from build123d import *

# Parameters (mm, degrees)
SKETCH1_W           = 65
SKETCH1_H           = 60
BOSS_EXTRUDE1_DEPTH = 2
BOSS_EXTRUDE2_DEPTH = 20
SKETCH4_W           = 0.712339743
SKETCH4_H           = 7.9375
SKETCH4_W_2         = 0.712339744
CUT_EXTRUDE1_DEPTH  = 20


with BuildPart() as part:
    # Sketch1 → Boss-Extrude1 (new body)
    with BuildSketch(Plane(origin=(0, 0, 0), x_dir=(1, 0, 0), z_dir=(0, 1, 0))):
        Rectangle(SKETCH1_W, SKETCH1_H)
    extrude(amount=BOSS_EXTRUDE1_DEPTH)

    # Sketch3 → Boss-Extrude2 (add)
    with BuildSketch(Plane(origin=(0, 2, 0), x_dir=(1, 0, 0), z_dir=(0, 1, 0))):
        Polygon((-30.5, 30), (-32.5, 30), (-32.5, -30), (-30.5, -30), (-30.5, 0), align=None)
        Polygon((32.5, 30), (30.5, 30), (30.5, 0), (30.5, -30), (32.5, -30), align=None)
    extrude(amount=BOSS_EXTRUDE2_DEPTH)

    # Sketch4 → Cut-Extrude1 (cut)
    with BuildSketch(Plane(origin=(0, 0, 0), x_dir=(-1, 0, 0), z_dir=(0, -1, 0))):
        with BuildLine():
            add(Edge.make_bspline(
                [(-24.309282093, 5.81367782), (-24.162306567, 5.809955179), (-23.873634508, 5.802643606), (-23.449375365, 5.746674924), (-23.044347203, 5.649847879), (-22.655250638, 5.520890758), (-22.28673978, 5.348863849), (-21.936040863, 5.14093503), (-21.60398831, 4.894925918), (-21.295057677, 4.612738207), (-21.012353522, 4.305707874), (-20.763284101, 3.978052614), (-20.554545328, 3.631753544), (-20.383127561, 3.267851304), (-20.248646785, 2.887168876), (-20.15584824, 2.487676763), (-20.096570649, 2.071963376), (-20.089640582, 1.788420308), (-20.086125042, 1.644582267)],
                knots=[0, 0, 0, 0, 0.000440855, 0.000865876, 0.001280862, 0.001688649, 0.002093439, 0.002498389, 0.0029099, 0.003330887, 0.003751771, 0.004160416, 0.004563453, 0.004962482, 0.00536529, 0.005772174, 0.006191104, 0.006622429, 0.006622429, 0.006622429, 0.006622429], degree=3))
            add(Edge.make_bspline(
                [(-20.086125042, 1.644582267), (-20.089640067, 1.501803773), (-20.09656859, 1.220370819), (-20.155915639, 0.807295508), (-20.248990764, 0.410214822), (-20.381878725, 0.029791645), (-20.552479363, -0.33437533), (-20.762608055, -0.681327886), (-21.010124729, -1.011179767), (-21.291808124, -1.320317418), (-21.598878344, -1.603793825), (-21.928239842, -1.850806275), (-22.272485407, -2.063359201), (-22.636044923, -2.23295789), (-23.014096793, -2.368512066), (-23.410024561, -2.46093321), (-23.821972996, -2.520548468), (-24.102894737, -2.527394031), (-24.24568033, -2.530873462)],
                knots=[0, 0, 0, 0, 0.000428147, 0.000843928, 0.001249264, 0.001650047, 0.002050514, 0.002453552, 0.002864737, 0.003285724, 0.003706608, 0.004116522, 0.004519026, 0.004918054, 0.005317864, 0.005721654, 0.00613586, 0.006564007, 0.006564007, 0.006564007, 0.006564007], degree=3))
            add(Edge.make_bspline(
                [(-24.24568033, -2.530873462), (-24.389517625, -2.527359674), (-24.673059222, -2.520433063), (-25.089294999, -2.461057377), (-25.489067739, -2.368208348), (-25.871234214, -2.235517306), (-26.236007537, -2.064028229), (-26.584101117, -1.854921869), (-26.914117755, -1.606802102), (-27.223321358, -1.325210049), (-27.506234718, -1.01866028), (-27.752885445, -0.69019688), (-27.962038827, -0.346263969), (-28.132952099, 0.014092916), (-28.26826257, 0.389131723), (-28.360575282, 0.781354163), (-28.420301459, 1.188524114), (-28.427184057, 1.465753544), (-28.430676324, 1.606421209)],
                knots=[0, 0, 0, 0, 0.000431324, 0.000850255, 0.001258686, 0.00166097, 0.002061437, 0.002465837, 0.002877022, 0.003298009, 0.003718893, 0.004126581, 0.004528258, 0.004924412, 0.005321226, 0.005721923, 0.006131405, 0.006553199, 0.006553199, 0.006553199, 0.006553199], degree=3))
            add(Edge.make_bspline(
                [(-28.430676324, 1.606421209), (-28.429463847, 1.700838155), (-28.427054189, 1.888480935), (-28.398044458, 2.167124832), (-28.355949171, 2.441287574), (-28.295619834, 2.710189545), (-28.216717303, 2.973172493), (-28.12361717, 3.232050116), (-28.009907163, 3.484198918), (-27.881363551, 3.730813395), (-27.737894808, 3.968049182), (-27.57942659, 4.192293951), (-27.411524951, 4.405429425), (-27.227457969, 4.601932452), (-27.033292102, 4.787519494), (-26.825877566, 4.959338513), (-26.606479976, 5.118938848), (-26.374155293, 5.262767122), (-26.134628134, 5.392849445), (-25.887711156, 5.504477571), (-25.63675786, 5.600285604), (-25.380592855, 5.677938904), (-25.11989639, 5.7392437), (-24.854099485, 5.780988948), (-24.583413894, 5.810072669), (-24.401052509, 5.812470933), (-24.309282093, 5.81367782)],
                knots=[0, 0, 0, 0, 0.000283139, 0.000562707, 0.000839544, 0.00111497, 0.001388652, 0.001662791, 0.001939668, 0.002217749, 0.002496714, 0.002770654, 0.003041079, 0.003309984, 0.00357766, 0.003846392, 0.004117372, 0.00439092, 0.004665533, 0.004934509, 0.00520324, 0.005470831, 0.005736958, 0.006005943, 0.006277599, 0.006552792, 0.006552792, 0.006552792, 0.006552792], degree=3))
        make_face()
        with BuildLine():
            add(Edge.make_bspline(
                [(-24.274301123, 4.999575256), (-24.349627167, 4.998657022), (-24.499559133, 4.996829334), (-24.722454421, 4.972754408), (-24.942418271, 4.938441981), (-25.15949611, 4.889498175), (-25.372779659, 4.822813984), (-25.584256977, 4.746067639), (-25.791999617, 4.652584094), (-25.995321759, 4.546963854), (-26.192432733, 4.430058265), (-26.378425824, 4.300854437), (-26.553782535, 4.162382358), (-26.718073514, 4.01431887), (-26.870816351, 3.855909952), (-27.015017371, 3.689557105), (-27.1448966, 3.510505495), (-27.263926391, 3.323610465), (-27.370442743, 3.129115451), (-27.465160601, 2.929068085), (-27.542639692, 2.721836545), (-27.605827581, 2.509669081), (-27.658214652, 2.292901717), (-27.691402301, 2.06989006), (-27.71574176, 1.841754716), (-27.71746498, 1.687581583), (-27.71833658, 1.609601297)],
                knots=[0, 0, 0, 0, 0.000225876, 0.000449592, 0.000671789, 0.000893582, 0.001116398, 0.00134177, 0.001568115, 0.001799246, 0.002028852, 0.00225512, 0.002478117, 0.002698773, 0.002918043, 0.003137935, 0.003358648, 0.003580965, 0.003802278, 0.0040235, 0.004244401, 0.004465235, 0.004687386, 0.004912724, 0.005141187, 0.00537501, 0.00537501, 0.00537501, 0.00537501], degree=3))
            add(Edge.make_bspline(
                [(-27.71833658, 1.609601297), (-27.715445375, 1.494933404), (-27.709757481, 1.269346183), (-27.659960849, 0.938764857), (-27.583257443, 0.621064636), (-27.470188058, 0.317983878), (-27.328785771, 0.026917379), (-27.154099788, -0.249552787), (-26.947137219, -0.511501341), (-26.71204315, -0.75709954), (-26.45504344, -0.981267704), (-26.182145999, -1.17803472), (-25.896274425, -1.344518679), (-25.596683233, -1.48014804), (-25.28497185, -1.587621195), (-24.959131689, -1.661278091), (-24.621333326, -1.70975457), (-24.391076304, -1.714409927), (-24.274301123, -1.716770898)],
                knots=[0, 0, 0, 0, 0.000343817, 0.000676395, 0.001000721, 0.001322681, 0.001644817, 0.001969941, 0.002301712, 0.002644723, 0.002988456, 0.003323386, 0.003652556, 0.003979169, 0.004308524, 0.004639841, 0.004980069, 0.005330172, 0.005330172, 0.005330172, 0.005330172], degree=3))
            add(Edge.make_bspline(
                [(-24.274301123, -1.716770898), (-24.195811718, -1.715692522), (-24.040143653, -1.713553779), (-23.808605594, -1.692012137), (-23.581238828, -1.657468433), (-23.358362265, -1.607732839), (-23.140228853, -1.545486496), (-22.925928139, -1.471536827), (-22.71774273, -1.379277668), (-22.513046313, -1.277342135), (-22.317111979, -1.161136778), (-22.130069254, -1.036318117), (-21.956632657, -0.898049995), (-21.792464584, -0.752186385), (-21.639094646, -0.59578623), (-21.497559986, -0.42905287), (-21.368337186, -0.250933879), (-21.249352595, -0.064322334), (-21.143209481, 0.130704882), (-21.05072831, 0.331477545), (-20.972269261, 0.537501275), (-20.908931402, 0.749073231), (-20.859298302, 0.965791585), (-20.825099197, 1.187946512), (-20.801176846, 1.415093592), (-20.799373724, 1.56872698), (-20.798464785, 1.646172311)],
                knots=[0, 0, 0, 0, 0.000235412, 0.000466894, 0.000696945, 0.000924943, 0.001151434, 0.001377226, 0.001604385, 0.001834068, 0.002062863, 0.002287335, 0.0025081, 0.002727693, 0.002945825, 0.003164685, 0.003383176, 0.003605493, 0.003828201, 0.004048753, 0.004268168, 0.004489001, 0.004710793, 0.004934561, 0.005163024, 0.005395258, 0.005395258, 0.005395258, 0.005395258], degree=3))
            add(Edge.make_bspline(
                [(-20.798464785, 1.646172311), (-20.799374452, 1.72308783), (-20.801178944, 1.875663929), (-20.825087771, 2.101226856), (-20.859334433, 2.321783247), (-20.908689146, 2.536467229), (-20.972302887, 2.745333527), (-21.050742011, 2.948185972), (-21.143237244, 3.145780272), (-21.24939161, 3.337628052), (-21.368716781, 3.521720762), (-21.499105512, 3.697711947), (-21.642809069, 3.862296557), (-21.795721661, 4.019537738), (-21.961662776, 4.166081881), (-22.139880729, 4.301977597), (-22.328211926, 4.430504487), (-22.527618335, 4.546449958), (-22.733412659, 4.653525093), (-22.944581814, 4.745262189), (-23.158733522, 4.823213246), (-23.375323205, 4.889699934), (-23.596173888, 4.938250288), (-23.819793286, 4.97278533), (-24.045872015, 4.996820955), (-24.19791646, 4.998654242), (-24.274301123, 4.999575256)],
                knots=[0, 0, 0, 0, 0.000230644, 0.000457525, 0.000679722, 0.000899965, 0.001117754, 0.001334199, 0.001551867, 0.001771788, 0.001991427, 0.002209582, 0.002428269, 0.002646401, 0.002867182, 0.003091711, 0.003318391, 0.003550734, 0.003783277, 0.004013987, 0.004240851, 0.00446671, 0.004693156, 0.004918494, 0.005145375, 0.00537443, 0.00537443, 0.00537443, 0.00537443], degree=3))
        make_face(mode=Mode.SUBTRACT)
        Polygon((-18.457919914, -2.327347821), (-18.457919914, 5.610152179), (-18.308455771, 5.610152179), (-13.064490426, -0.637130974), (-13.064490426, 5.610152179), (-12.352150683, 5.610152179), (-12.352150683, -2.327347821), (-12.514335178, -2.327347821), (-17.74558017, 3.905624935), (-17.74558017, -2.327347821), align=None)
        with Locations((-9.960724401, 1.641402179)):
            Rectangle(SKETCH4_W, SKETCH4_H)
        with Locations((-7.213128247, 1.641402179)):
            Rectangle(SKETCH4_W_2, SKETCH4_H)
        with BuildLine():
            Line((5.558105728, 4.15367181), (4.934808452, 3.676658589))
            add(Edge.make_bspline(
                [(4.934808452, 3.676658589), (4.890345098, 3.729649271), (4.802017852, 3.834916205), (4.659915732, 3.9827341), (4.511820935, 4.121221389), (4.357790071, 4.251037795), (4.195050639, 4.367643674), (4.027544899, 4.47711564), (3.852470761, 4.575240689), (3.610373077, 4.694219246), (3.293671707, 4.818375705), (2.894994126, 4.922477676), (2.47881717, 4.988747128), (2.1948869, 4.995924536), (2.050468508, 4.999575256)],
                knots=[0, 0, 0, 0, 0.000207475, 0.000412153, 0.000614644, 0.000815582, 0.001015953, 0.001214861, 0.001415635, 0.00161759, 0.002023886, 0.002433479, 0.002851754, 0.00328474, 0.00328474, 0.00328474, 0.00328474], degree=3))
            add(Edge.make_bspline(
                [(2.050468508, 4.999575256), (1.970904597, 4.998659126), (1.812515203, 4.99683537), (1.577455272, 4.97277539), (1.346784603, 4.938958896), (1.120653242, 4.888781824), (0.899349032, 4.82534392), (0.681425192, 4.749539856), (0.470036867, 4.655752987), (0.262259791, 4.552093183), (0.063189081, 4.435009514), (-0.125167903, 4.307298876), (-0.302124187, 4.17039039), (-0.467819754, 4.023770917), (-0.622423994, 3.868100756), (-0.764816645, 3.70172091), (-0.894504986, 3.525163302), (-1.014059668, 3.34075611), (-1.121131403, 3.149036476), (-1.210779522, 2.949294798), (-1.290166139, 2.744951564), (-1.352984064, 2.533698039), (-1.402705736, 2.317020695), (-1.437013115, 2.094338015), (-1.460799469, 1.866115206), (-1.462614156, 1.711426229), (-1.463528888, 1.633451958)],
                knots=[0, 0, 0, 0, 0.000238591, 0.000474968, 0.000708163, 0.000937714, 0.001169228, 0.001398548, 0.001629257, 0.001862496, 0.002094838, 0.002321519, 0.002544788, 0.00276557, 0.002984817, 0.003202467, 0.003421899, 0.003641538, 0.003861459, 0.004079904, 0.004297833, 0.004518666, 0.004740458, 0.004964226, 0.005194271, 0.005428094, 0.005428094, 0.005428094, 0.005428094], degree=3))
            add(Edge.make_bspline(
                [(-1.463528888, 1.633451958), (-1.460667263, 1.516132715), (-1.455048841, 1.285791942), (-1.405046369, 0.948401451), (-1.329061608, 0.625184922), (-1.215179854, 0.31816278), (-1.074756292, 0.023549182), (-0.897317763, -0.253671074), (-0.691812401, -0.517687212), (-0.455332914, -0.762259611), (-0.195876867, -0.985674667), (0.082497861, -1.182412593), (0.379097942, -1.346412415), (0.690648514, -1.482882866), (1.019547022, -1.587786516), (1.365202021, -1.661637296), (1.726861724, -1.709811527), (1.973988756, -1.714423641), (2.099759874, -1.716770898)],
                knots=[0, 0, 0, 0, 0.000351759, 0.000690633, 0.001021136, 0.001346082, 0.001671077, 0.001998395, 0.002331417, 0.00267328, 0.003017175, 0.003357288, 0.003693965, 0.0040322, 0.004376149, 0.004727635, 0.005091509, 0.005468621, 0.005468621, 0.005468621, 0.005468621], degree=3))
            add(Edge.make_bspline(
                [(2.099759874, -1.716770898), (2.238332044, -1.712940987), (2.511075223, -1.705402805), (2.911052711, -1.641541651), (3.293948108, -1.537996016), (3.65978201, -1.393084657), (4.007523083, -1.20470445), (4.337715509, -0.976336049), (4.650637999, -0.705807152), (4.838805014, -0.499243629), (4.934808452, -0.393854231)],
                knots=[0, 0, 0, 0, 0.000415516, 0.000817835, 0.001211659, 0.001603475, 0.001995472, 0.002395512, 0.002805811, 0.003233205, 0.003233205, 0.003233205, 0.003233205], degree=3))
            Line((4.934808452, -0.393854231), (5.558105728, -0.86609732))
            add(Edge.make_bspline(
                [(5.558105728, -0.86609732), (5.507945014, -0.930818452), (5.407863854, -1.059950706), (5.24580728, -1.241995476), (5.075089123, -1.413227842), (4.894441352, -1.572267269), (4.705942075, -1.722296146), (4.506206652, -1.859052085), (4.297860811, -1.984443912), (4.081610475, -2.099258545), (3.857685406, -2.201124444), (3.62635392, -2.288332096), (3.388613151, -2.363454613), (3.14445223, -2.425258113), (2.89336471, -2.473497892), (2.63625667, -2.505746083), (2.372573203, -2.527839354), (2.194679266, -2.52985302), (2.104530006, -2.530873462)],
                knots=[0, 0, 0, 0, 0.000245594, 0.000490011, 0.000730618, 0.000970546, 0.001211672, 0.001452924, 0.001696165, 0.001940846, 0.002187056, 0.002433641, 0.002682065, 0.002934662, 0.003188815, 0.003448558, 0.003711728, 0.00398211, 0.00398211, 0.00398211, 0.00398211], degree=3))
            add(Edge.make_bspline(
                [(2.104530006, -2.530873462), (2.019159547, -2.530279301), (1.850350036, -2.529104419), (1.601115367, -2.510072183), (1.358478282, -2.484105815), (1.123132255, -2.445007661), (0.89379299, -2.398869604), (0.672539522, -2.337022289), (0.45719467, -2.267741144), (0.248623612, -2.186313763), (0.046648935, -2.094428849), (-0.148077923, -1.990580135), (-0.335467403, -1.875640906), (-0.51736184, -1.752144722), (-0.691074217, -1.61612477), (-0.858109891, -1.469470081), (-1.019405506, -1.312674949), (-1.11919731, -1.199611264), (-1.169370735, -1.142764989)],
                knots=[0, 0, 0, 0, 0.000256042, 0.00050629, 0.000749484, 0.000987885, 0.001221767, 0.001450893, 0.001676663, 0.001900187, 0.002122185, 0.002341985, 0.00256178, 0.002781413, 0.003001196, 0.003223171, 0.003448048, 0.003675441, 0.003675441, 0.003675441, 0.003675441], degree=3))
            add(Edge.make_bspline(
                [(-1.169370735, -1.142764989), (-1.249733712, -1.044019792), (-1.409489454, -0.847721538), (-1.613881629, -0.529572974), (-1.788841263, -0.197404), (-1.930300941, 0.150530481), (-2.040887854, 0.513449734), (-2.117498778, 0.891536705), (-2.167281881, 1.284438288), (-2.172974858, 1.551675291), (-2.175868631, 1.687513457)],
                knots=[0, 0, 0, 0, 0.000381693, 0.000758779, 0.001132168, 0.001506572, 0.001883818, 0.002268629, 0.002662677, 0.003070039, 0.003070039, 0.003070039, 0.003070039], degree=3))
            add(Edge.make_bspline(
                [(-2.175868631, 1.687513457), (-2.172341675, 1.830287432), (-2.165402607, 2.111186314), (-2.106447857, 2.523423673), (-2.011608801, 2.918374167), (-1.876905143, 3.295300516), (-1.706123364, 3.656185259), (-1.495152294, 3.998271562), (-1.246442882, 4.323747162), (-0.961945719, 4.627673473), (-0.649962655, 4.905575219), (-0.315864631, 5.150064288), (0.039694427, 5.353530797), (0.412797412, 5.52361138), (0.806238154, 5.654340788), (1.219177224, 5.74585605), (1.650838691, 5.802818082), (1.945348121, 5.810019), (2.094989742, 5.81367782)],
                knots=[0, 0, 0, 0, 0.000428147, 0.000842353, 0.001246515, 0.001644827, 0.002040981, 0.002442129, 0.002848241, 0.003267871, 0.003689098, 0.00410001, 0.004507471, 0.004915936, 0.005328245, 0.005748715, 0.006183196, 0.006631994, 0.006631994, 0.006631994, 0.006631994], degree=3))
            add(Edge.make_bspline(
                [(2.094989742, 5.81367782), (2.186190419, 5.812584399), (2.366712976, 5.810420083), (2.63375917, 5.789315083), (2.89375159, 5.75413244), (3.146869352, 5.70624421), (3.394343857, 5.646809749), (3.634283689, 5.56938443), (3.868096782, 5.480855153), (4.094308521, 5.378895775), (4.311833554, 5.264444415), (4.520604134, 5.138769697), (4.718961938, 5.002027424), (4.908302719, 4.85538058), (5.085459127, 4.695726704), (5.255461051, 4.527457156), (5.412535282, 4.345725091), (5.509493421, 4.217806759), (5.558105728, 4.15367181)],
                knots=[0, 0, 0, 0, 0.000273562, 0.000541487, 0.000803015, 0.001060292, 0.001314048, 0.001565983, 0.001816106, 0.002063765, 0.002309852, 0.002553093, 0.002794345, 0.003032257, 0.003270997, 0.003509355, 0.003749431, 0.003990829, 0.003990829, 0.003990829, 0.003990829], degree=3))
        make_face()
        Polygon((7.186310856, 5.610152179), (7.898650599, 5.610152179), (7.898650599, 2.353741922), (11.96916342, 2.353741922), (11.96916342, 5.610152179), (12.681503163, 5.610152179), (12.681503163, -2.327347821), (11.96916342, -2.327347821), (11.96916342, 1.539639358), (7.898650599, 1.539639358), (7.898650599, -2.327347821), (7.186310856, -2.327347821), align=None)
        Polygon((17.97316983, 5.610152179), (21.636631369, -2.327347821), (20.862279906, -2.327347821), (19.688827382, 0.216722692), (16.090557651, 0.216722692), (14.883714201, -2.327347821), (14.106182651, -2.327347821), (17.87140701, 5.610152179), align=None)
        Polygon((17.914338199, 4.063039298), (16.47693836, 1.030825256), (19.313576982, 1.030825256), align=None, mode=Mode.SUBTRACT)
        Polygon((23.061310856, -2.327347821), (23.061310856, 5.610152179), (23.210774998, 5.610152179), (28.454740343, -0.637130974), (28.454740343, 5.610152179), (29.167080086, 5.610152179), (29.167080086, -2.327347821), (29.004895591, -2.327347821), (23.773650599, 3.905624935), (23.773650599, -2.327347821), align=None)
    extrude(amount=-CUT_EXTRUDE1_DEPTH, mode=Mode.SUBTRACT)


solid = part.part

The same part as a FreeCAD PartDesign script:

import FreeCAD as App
import Part
import Sketcher

V = App.Vector
Q = App.Units.Quantity


def add_polygon(sketch, points):
    """Adds a closed chain of lines whose ends are joined by coincident constraints."""
    first, n = sketch.GeometryCount, len(points)
    for a, b in zip(points, points[1:] + points[:1]):
        sketch.addGeometry(Part.LineSegment(App.Vector(*a, 0), App.Vector(*b, 0)), False)
    for i in range(n):
        sketch.addConstraint(Sketcher.Constraint("Coincident", first + i, 2, first + (i + 1) % n, 1))

doc = App.newDocument("Part")
body = doc.addObject("PartDesign::Body", "Body")
body.AllowCompound = True

# Sketch on XZ plane
sketch1 = doc.addObject("Sketcher::SketchObject", "Sketch")
body.addObject(sketch1)
sketch1.AttachmentSupport = (doc.XZ_Plane, [""])
sketch1.MapMode = "FlatFace"
add_polygon(sketch1, [(-32, -30), (-32, 30), (32, 30), (32, -30)])  # lines 0-3
sketch1.addConstraint(Sketcher.Constraint("Vertical", 0))
sketch1.addConstraint(Sketcher.Constraint("Horizontal", 1))
sketch1.addConstraint(Sketcher.Constraint("Vertical", 2))
sketch1.addConstraint(Sketcher.Constraint("Horizontal", 3))
sketch1.addConstraint(Sketcher.Constraint("Symmetric", 0, 2, 2, 2, -1, 1))
sketch1.addConstraint(Sketcher.Constraint("DistanceX", 1, 1, 1, 2, Q("65 mm")))
sketch1.addConstraint(Sketcher.Constraint("DistanceY", 0, 1, 0, 2, Q("60 mm")))
pad1 = doc.addObject("PartDesign::Pad", "Pad")
body.addObject(pad1)
pad1.Profile = sketch1
pad1.Length = 2
pad1.Reversed = True

# Sketch on XZ plane
sketch2 = doc.addObject("Sketcher::SketchObject", "Sketch001")
body.addObject(sketch2)
sketch2.AttachmentSupport = (doc.XZ_Plane, [""])
sketch2.MapMode = "FlatFace"
sketch2.AttachmentOffset = App.Placement(V(0, 0, -2), App.Rotation())
add_polygon(sketch2, [(-30.5, -30), (-32.5, -30), (-32.5, 30), (-30.5, 30)])  # lines 0-3
add_polygon(sketch2, [(32.5, -30), (30.5, -30), (30.5, 30), (32.5, 30)])  # lines 4-7
sketch2.addConstraint(Sketcher.Constraint("Horizontal", 0))
sketch2.addConstraint(Sketcher.Constraint("Vertical", 1))
sketch2.addConstraint(Sketcher.Constraint("Horizontal", 2))
sketch2.addConstraint(Sketcher.Constraint("Vertical", 3))
sketch2.addConstraint(Sketcher.Constraint("Horizontal", 4))
sketch2.addConstraint(Sketcher.Constraint("Vertical", 5))
sketch2.addConstraint(Sketcher.Constraint("Horizontal", 6))
sketch2.addConstraint(Sketcher.Constraint("Vertical", 7))
sketch2.addConstraint(Sketcher.Constraint("Symmetric", 2, 2, 4, 2, -1, 1))
sketch2.addConstraint(Sketcher.Constraint("Symmetric", 0, 2, 6, 2, -1, 1))
sketch2.addConstraint(Sketcher.Constraint("Horizontal", 3, 2, 4, 2))
sketch2.addConstraint(Sketcher.Constraint("DistanceX", 0, 2, 0, 1, Q("2 mm")))
sketch2.addConstraint(Sketcher.Constraint("DistanceY", 1, 1, 1, 2, Q("60 mm")))
sketch2.addConstraint(Sketcher.Constraint("DistanceX", 3, 2, 4, 2, Q("61 mm")))
pad2 = doc.addObject("PartDesign::Pad", "Pad001")
body.addObject(pad2)
pad2.Profile = sketch2
pad2.Length = 20
pad2.Reversed = True

# Sketch on XZ plane
sketch3 = doc.addObject("Sketcher::SketchObject", "Sketch002")
body.addObject(sketch3)
sketch3.AttachmentSupport = (doc.XZ_Plane, [""])
sketch3.MapMode = "FlatFace"
sketch3.addGeometry(Part.BSplineCurve([V(24.309282, -5.813678, 0), V(24.162307, -5.809955, 0), V(23.873635, -5.802644, 0), V(23.449375, -5.746675, 0), V(23.044347, -5.649848, 0), V(22.655251, -5.520891, 0), V(22.28674, -5.348864, 0), V(21.936041, -5.140935, 0), V(21.603988, -4.894926, 0), V(21.295058, -4.612738, 0), V(21.012354, -4.305708, 0), V(20.763284, -3.978053, 0), V(20.554545, -3.631754, 0), V(20.383128, -3.267851, 0), V(20.248647, -2.887169, 0), V(20.155848, -2.487677, 0), V(20.096571, -2.071963, 0), V(20.089641, -1.78842, 0), V(20.086125, -1.644582, 0)], [4, 1, 1, 1, 1, 1, 1, 1, 1, 1, 1, 1, 1, 1, 1, 1, 4], [0, 0.000440855, 0.000865876, 0.001280862, 0.001688649, 0.002093439, 0.002498389, 0.0029099, 0.003330887, 0.003751771, 0.004160416, 0.004563453, 0.004962482, 0.00536529, 0.005772174, 0.006191104, 0.006622429], False, 3, [1, 1, 1, 1, 1, 1, 1, 1, 1, 1, 1, 1, 1, 1, 1, 1, 1, 1, 1], False), False)  # 0
sketch3.addGeometry(Part.BSplineCurve([V(28.430676, -1.606421, 0), V(28.429464, -1.700838, 0), V(28.427054, -1.888481, 0), V(28.398044, -2.167125, 0), V(28.355949, -2.441288, 0), V(28.29562, -2.71019, 0), V(28.216717, -2.973172, 0), V(28.123617, -3.23205, 0), V(28.009907, -3.484199, 0), V(27.881364, -3.730813, 0), V(27.737895, -3.968049, 0), V(27.579427, -4.192294, 0), V(27.411525, -4.405429, 0), V(27.227458, -4.601932, 0), V(27.033292, -4.787519, 0), V(26.825878, -4.959339, 0), V(26.60648, -5.118939, 0), V(26.374155, -5.262767, 0), V(26.134628, -5.392849, 0), V(25.887711, -5.504478, 0), V(25.636758, -5.600286, 0), V(25.380593, -5.677939, 0), V(25.119896, -5.739244, 0), V(24.854099, -5.780989, 0), V(24.583414, -5.810073, 0), V(24.401053, -5.812471, 0), V(24.309282, -5.813678, 0)], [4, 1, 1, 1, 1, 1, 1, 1, 1, 1, 1, 1, 1, 1, 1, 1, 1, 1, 1, 1, 1, 1, 1, 1, 4], [0, 0.000283139, 0.000562707, 0.000839544, 0.00111497, 0.001388652, 0.001662791, 0.001939668, 0.002217749, 0.002496714, 0.002770654, 0.003041079, 0.003309984, 0.00357766, 0.003846392, 0.004117372, 0.00439092, 0.004665533, 0.004934509, 0.00520324, 0.005470831, 0.005736958, 0.006005943, 0.006277599, 0.006552792], False, 3, [1, 1, 1, 1, 1, 1, 1, 1, 1, 1, 1, 1, 1, 1, 1, 1, 1, 1, 1, 1, 1, 1, 1, 1, 1, 1, 1], False), False)  # 1
sketch3.addGeometry(Part.BSplineCurve([V(24.24568, 2.530873, 0), V(24.389518, 2.52736, 0), V(24.673059, 2.520433, 0), V(25.089295, 2.461057, 0), V(25.489068, 2.368208, 0), V(25.871234, 2.235517, 0), V(26.236008, 2.064028, 0), V(26.584101, 1.854922, 0), V(26.914118, 1.606802, 0), V(27.223321, 1.32521, 0), V(27.506235, 1.01866, 0), V(27.752885, 0.690197, 0), V(27.962039, 0.346264, 0), V(28.132952, -0.014093, 0), V(28.268263, -0.389132, 0), V(28.360575, -0.781354, 0), V(28.420301, -1.188524, 0), V(28.427184, -1.465754, 0), V(28.430676, -1.606421, 0)], [4, 1, 1, 1, 1, 1, 1, 1, 1, 1, 1, 1, 1, 1, 1, 1, 4], [0, 0.000431324, 0.000850255, 0.001258686, 0.00166097, 0.002061437, 0.002465837, 0.002877022, 0.003298009, 0.003718893, 0.004126581, 0.004528258, 0.004924412, 0.005321226, 0.005721923, 0.006131405, 0.006553199], False, 3, [1, 1, 1, 1, 1, 1, 1, 1, 1, 1, 1, 1, 1, 1, 1, 1, 1, 1, 1], False), False)  # 2
sketch3.addGeometry(Part.BSplineCurve([V(20.086125, -1.644582, 0), V(20.08964, -1.501804, 0), V(20.096569, -1.220371, 0), V(20.155916, -0.807296, 0), V(20.248991, -0.410215, 0), V(20.381879, -0.029792, 0), V(20.552479, 0.334375, 0), V(20.762608, 0.681328, 0), V(21.010125, 1.01118, 0), V(21.291808, 1.320317, 0), V(21.598878, 1.603794, 0), V(21.92824, 1.850806, 0), V(22.272485, 2.063359, 0), V(22.636045, 2.232958, 0), V(23.014097, 2.368512, 0), V(23.410025, 2.460933, 0), V(23.821973, 2.520548, 0), V(24.102895, 2.527394, 0), V(24.24568, 2.530873, 0)], [4, 1, 1, 1, 1, 1, 1, 1, 1, 1, 1, 1, 1, 1, 1, 1, 4], [0, 0.000428147, 0.000843928, 0.001249264, 0.001650047, 0.002050514, 0.002453552, 0.002864737, 0.003285724, 0.003706608, 0.004116522, 0.004519026, 0.004918054, 0.005317864, 0.005721654, 0.00613586, 0.006564007], False, 3, [1, 1, 1, 1, 1, 1, 1, 1, 1, 1, 1, 1, 1, 1, 1, 1, 1, 1, 1], False), False)  # 3
sketch3.addGeometry(Part.BSplineCurve([V(20.798465, -1.646172, 0), V(20.799374, -1.723088, 0), V(20.801179, -1.875664, 0), V(20.825088, -2.101227, 0), V(20.859334, -2.321783, 0), V(20.908689, -2.536467, 0), V(20.972303, -2.745334, 0), V(21.050742, -2.948186, 0), V(21.143237, -3.14578, 0), V(21.249392, -3.337628, 0), V(21.368717, -3.521721, 0), V(21.499106, -3.697712, 0), V(21.642809, -3.862297, 0), V(21.795722, -4.019538, 0), V(21.961663, -4.166082, 0), V(22.139881, -4.301978, 0), V(22.328212, -4.430504, 0), V(22.527618, -4.54645, 0), V(22.733413, -4.653525, 0), V(22.944582, -4.745262, 0), V(23.158734, -4.823213, 0), V(23.375323, -4.8897, 0), V(23.596174, -4.93825, 0), V(23.819793, -4.972785, 0), V(24.045872, -4.996821, 0), V(24.197916, -4.998654, 0), V(24.274301, -4.999575, 0)], [4, 1, 1, 1, 1, 1, 1, 1, 1, 1, 1, 1, 1, 1, 1, 1, 1, 1, 1, 1, 1, 1, 1, 1, 4], [0, 0.000230644, 0.000457525, 0.000679722, 0.000899965, 0.001117754, 0.001334199, 0.001551867, 0.001771788, 0.001991427, 0.002209582, 0.002428269, 0.002646401, 0.002867182, 0.003091711, 0.003318391, 0.003550734, 0.003783277, 0.004013987, 0.004240851, 0.00446671, 0.004693156, 0.004918494, 0.005145375, 0.00537443], False, 3, [1, 1, 1, 1, 1, 1, 1, 1, 1, 1, 1, 1, 1, 1, 1, 1, 1, 1, 1, 1, 1, 1, 1, 1, 1, 1, 1], False), False)  # 4
sketch3.addGeometry(Part.BSplineCurve([V(24.274301, 1.716771, 0), V(24.195812, 1.715693, 0), V(24.040144, 1.713554, 0), V(23.808606, 1.692012, 0), V(23.581239, 1.657468, 0), V(23.358362, 1.607733, 0), V(23.140229, 1.545486, 0), V(22.925928, 1.471537, 0), V(22.717743, 1.379278, 0), V(22.513046, 1.277342, 0), V(22.317112, 1.161137, 0), V(22.130069, 1.036318, 0), V(21.956633, 0.89805, 0), V(21.792465, 0.752186, 0), V(21.639095, 0.595786, 0), V(21.49756, 0.429053, 0), V(21.368337, 0.250934, 0), V(21.249353, 0.064322, 0), V(21.143209, -0.130705, 0), V(21.050728, -0.331478, 0), V(20.972269, -0.537501, 0), V(20.908931, -0.749073, 0), V(20.859298, -0.965792, 0), V(20.825099, -1.187947, 0), V(20.801177, -1.415094, 0), V(20.799374, -1.568727, 0), V(20.798465, -1.646172, 0)], [4, 1, 1, 1, 1, 1, 1, 1, 1, 1, 1, 1, 1, 1, 1, 1, 1, 1, 1, 1, 1, 1, 1, 1, 4], [0, 0.000235412, 0.000466894, 0.000696945, 0.000924943, 0.001151434, 0.001377226, 0.001604385, 0.001834068, 0.002062863, 0.002287335, 0.0025081, 0.002727693, 0.002945825, 0.003164685, 0.003383176, 0.003605493, 0.003828201, 0.004048753, 0.004268168, 0.004489001, 0.004710793, 0.004934561, 0.005163024, 0.005395258], False, 3, [1, 1, 1, 1, 1, 1, 1, 1, 1, 1, 1, 1, 1, 1, 1, 1, 1, 1, 1, 1, 1, 1, 1, 1, 1, 1, 1], False), False)  # 5
sketch3.addGeometry(Part.BSplineCurve([V(27.718337, -1.609601, 0), V(27.715445, -1.494933, 0), V(27.709757, -1.269346, 0), V(27.659961, -0.938765, 0), V(27.583257, -0.621065, 0), V(27.470188, -0.317984, 0), V(27.328786, -0.026917, 0), V(27.1541, 0.249553, 0), V(26.947137, 0.511501, 0), V(26.712043, 0.7571, 0), V(26.455043, 0.981268, 0), V(26.182146, 1.178035, 0), V(25.896274, 1.344519, 0), V(25.596683, 1.480148, 0), V(25.284972, 1.587621, 0), V(24.959132, 1.661278, 0), V(24.621333, 1.709755, 0), V(24.391076, 1.71441, 0), V(24.274301, 1.716771, 0)], [4, 1, 1, 1, 1, 1, 1, 1, 1, 1, 1, 1, 1, 1, 1, 1, 4], [0, 0.000343817, 0.000676395, 0.001000721, 0.001322681, 0.001644817, 0.001969941, 0.002301712, 0.002644723, 0.002988456, 0.003323386, 0.003652556, 0.003979169, 0.004308524, 0.004639841, 0.004980069, 0.005330172], False, 3, [1, 1, 1, 1, 1, 1, 1, 1, 1, 1, 1, 1, 1, 1, 1, 1, 1, 1, 1], False), False)  # 6
sketch3.addGeometry(Part.BSplineCurve([V(24.274301, -4.999575, 0), V(24.349627, -4.998657, 0), V(24.499559, -4.996829, 0), V(24.722454, -4.972754, 0), V(24.942418, -4.938442, 0), V(25.159496, -4.889498, 0), V(25.37278, -4.822814, 0), V(25.584257, -4.746068, 0), V(25.792, -4.652584, 0), V(25.995322, -4.546964, 0), V(26.192433, -4.430058, 0), V(26.378426, -4.300854, 0), V(26.553783, -4.162382, 0), V(26.718074, -4.014319, 0), V(26.870816, -3.85591, 0), V(27.015017, -3.689557, 0), V(27.144897, -3.510505, 0), V(27.263926, -3.32361, 0), V(27.370443, -3.129115, 0), V(27.465161, -2.929068, 0), V(27.54264, -2.721837, 0), V(27.605828, -2.509669, 0), V(27.658215, -2.292902, 0), V(27.691402, -2.06989, 0), V(27.715742, -1.841755, 0), V(27.717465, -1.687582, 0), V(27.718337, -1.609601, 0)], [4, 1, 1, 1, 1, 1, 1, 1, 1, 1, 1, 1, 1, 1, 1, 1, 1, 1, 1, 1, 1, 1, 1, 1, 4], [0, 0.000225876, 0.000449592, 0.000671789, 0.000893582, 0.001116398, 0.00134177, 0.001568115, 0.001799246, 0.002028852, 0.00225512, 0.002478117, 0.002698773, 0.002918043, 0.003137935, 0.003358648, 0.003580965, 0.003802278, 0.0040235, 0.004244401, 0.004465235, 0.004687386, 0.004912724, 0.005141187, 0.00537501], False, 3, [1, 1, 1, 1, 1, 1, 1, 1, 1, 1, 1, 1, 1, 1, 1, 1, 1, 1, 1, 1, 1, 1, 1, 1, 1, 1, 1], False), False)  # 7
add_polygon(sketch3, [(18.45792, -5.610152), (18.45792, 2.327348), (17.74558, 2.327348), (17.74558, -3.905625), (12.514335, 2.327348), (12.352151, 2.327348), (12.352151, -5.610152), (13.06449, -5.610152), (13.06449, 0.637131), (18.308456, -5.610152)])  # lines 8-17
add_polygon(sketch3, [(10.316894, -5.610152), (10.316894, 2.327348), (9.604555, 2.327348), (9.604555, -5.610152)])  # lines 18-21
add_polygon(sketch3, [(7.569298, -5.610152), (7.569298, 2.327348), (6.856958, 2.327348), (6.856958, -5.610152)])  # lines 22-25
sketch3.addGeometry(Part.LineSegment(V(-4.934808, -3.676659, 0), V(-5.558106, -4.153672, 0)), False)  # 26
sketch3.addGeometry(Part.BSplineCurve([V(-2.09499, -5.813678, 0), V(-2.18619, -5.812584, 0), V(-2.366713, -5.81042, 0), V(-2.633759, -5.789315, 0), V(-2.893752, -5.754132, 0), V(-3.146869, -5.706244, 0), V(-3.394344, -5.64681, 0), V(-3.634284, -5.569384, 0), V(-3.868097, -5.480855, 0), V(-4.094309, -5.378896, 0), V(-4.311834, -5.264444, 0), V(-4.520604, -5.13877, 0), V(-4.718962, -5.002027, 0), V(-4.908303, -4.855381, 0), V(-5.085459, -4.695727, 0), V(-5.255461, -4.527457, 0), V(-5.412535, -4.345725, 0), V(-5.509493, -4.217807, 0), V(-5.558106, -4.153672, 0)], [4, 1, 1, 1, 1, 1, 1, 1, 1, 1, 1, 1, 1, 1, 1, 1, 4], [0, 0.000273562, 0.000541487, 0.000803015, 0.001060292, 0.001314048, 0.001565983, 0.001816106, 0.002063765, 0.002309852, 0.002553093, 0.002794345, 0.003032257, 0.003270997, 0.003509355, 0.003749431, 0.003990829], False, 3, [1, 1, 1, 1, 1, 1, 1, 1, 1, 1, 1, 1, 1, 1, 1, 1, 1, 1, 1], False), False)  # 27
sketch3.addGeometry(Part.BSplineCurve([V(2.175869, -1.687513, 0), V(2.172342, -1.830287, 0), V(2.165403, -2.111186, 0), V(2.106448, -2.523424, 0), V(2.011609, -2.918374, 0), V(1.876905, -3.295301, 0), V(1.706123, -3.656185, 0), V(1.495152, -3.998272, 0), V(1.246443, -4.323747, 0), V(0.961946, -4.627673, 0), V(0.649963, -4.905575, 0), V(0.315865, -5.150064, 0), V(-0.039694, -5.353531, 0), V(-0.412797, -5.523611, 0), V(-0.806238, -5.654341, 0), V(-1.219177, -5.745856, 0), V(-1.650839, -5.802818, 0), V(-1.945348, -5.810019, 0), V(-2.09499, -5.813678, 0)], [4, 1, 1, 1, 1, 1, 1, 1, 1, 1, 1, 1, 1, 1, 1, 1, 4], [0, 0.000428147, 0.000842353, 0.001246515, 0.001644827, 0.002040981, 0.002442129, 0.002848241, 0.003267871, 0.003689098, 0.00410001, 0.004507471, 0.004915936, 0.005328245, 0.005748715, 0.006183196, 0.006631994], False, 3, [1, 1, 1, 1, 1, 1, 1, 1, 1, 1, 1, 1, 1, 1, 1, 1, 1, 1, 1], False), False)  # 28
sketch3.addGeometry(Part.BSplineCurve([V(1.169371, 1.142765, 0), V(1.249734, 1.04402, 0), V(1.409489, 0.847722, 0), V(1.613882, 0.529573, 0), V(1.788841, 0.197404, 0), V(1.930301, -0.15053, 0), V(2.040888, -0.51345, 0), V(2.117499, -0.891537, 0), V(2.167282, -1.284438, 0), V(2.172975, -1.551675, 0), V(2.175869, -1.687513, 0)], [4, 1, 1, 1, 1, 1, 1, 1, 4], [0, 0.000381693, 0.000758779, 0.001132168, 0.001506572, 0.001883818, 0.002268629, 0.002662677, 0.003070039], False, 3, [1, 1, 1, 1, 1, 1, 1, 1, 1, 1, 1], False), False)  # 29
sketch3.addGeometry(Part.BSplineCurve([V(-2.10453, 2.530873, 0), V(-2.01916, 2.530279, 0), V(-1.85035, 2.529104, 0), V(-1.601115, 2.510072, 0), V(-1.358478, 2.484106, 0), V(-1.123132, 2.445008, 0), V(-0.893793, 2.39887, 0), V(-0.67254, 2.337022, 0), V(-0.457195, 2.267741, 0), V(-0.248624, 2.186314, 0), V(-0.046649, 2.094429, 0), V(0.148078, 1.99058, 0), V(0.335467, 1.875641, 0), V(0.517362, 1.752145, 0), V(0.691074, 1.616125, 0), V(0.85811, 1.46947, 0), V(1.019406, 1.312675, 0), V(1.119197, 1.199611, 0), V(1.169371, 1.142765, 0)], [4, 1, 1, 1, 1, 1, 1, 1, 1, 1, 1, 1, 1, 1, 1, 1, 4], [0, 0.000256042, 0.00050629, 0.000749484, 0.000987885, 0.001221767, 0.001450893, 0.001676663, 0.001900187, 0.002122185, 0.002341985, 0.00256178, 0.002781413, 0.003001196, 0.003223171, 0.003448048, 0.003675441], False, 3, [1, 1, 1, 1, 1, 1, 1, 1, 1, 1, 1, 1, 1, 1, 1, 1, 1, 1, 1], False), False)  # 30
sketch3.addGeometry(Part.BSplineCurve([V(-5.558106, 0.866097, 0), V(-5.507945, 0.930818, 0), V(-5.407864, 1.059951, 0), V(-5.245807, 1.241995, 0), V(-5.075089, 1.413228, 0), V(-4.894441, 1.572267, 0), V(-4.705942, 1.722296, 0), V(-4.506207, 1.859052, 0), V(-4.297861, 1.984444, 0), V(-4.08161, 2.099259, 0), V(-3.857685, 2.201124, 0), V(-3.626354, 2.288332, 0), V(-3.388613, 2.363455, 0), V(-3.144452, 2.425258, 0), V(-2.893365, 2.473498, 0), V(-2.636257, 2.505746, 0), V(-2.372573, 2.527839, 0), V(-2.194679, 2.529853, 0), V(-2.10453, 2.530873, 0)], [4, 1, 1, 1, 1, 1, 1, 1, 1, 1, 1, 1, 1, 1, 1, 1, 4], [0, 0.000245594, 0.000490011, 0.000730618, 0.000970546, 0.001211672, 0.001452924, 0.001696165, 0.001940846, 0.002187056, 0.002433641, 0.002682065, 0.002934662, 0.003188815, 0.003448558, 0.003711728, 0.00398211], False, 3, [1, 1, 1, 1, 1, 1, 1, 1, 1, 1, 1, 1, 1, 1, 1, 1, 1, 1, 1], False), False)  # 31
sketch3.addGeometry(Part.LineSegment(V(-5.558106, 0.866097, 0), V(-4.934808, 0.393854, 0)), False)  # 32
sketch3.addGeometry(Part.BSplineCurve([V(-2.09976, 1.716771, 0), V(-2.238332, 1.712941, 0), V(-2.511075, 1.705403, 0), V(-2.911053, 1.641542, 0), V(-3.293948, 1.537996, 0), V(-3.659782, 1.393085, 0), V(-4.007523, 1.204704, 0), V(-4.337716, 0.976336, 0), V(-4.650638, 0.705807, 0), V(-4.838805, 0.499244, 0), V(-4.934808, 0.393854, 0)], [4, 1, 1, 1, 1, 1, 1, 1, 4], [0, 0.000415516, 0.000817835, 0.001211659, 0.001603475, 0.001995472, 0.002395512, 0.002805811, 0.003233205], False, 3, [1, 1, 1, 1, 1, 1, 1, 1, 1, 1, 1], False), False)  # 33
sketch3.addGeometry(Part.BSplineCurve([V(1.463529, -1.633452, 0), V(1.460667, -1.516133, 0), V(1.455049, -1.285792, 0), V(1.405046, -0.948401, 0), V(1.329062, -0.625185, 0), V(1.21518, -0.318163, 0), V(1.074756, -0.023549, 0), V(0.897318, 0.253671, 0), V(0.691812, 0.517687, 0), V(0.455333, 0.76226, 0), V(0.195877, 0.985675, 0), V(-0.082498, 1.182413, 0), V(-0.379098, 1.346412, 0), V(-0.690649, 1.482883, 0), V(-1.019547, 1.587787, 0), V(-1.365202, 1.661637, 0), V(-1.726862, 1.709812, 0), V(-1.973989, 1.714424, 0), V(-2.09976, 1.716771, 0)], [4, 1, 1, 1, 1, 1, 1, 1, 1, 1, 1, 1, 1, 1, 1, 1, 4], [0, 0.000351759, 0.000690633, 0.001021136, 0.001346082, 0.001671077, 0.001998395, 0.002331417, 0.00267328, 0.003017175, 0.003357288, 0.003693965, 0.0040322, 0.004376149, 0.004727635, 0.005091509, 0.005468621], False, 3, [1, 1, 1, 1, 1, 1, 1, 1, 1, 1, 1, 1, 1, 1, 1, 1, 1, 1, 1], False), False)  # 34
sketch3.addGeometry(Part.BSplineCurve([V(-2.050469, -4.999575, 0), V(-1.970905, -4.998659, 0), V(-1.812515, -4.996835, 0), V(-1.577455, -4.972775, 0), V(-1.346785, -4.938959, 0), V(-1.120653, -4.888782, 0), V(-0.899349, -4.825344, 0), V(-0.681425, -4.74954, 0), V(-0.470037, -4.655753, 0), V(-0.26226, -4.552093, 0), V(-0.063189, -4.43501, 0), V(0.125168, -4.307299, 0), V(0.302124, -4.17039, 0), V(0.46782, -4.023771, 0), V(0.622424, -3.868101, 0), V(0.764817, -3.701721, 0), V(0.894505, -3.525163, 0), V(1.01406, -3.340756, 0), V(1.121131, -3.149036, 0), V(1.21078, -2.949295, 0), V(1.290166, -2.744952, 0), V(1.352984, -2.533698, 0), V(1.402706, -2.317021, 0), V(1.437013, -2.094338, 0), V(1.460799, -1.866115, 0), V(1.462614, -1.711426, 0), V(1.463529, -1.633452, 0)], [4, 1, 1, 1, 1, 1, 1, 1, 1, 1, 1, 1, 1, 1, 1, 1, 1, 1, 1, 1, 1, 1, 1, 1, 4], [0, 0.000238591, 0.000474968, 0.000708163, 0.000937714, 0.001169228, 0.001398548, 0.001629257, 0.001862496, 0.002094838, 0.002321519, 0.002544788, 0.00276557, 0.002984817, 0.003202467, 0.003421899, 0.003641538, 0.003861459, 0.004079904, 0.004297833, 0.004518666, 0.004740458, 0.004964226, 0.005194271, 0.005428094], False, 3, [1, 1, 1, 1, 1, 1, 1, 1, 1, 1, 1, 1, 1, 1, 1, 1, 1, 1, 1, 1, 1, 1, 1, 1, 1, 1, 1], False), False)  # 35
sketch3.addGeometry(Part.BSplineCurve([V(-4.934808, -3.676659, 0), V(-4.890345, -3.729649, 0), V(-4.802018, -3.834916, 0), V(-4.659916, -3.982734, 0), V(-4.511821, -4.121221, 0), V(-4.35779, -4.251038, 0), V(-4.195051, -4.367644, 0), V(-4.027545, -4.477116, 0), V(-3.852471, -4.575241, 0), V(-3.610373, -4.694219, 0), V(-3.293672, -4.818376, 0), V(-2.894994, -4.922478, 0), V(-2.478817, -4.988747, 0), V(-2.194887, -4.995925, 0), V(-2.050469, -4.999575, 0)], [4, 1, 1, 1, 1, 1, 1, 1, 1, 1, 1, 1, 4], [0, 0.000207475, 0.000412153, 0.000614644, 0.000815582, 0.001015953, 0.001214861, 0.001415635, 0.00161759, 0.002023886, 0.002433479, 0.002851754, 0.00328474], False, 3, [1, 1, 1, 1, 1, 1, 1, 1, 1, 1, 1, 1, 1, 1, 1], False), False)  # 36
add_polygon(sketch3, [(-7.898651, -5.610152), (-7.186311, -5.610152), (-7.186311, 2.327348), (-7.898651, 2.327348), (-7.898651, -1.539639), (-11.969163, -1.539639), (-11.969163, 2.327348), (-12.681503, 2.327348), (-12.681503, -5.610152), (-11.969163, -5.610152), (-11.969163, -2.353742), (-7.898651, -2.353742)])  # lines 37-48
add_polygon(sketch3, [(-21.636631, 2.327348), (-17.97317, -5.610152), (-17.871407, -5.610152), (-14.106183, 2.327348), (-14.883714, 2.327348), (-16.090558, -0.216723), (-19.688827, -0.216723), (-20.86228, 2.327348)])  # lines 49-56
add_polygon(sketch3, [(-17.914338, -4.063039), (-19.313577, -1.030825), (-16.476938, -1.030825)])  # lines 57-59
add_polygon(sketch3, [(-23.061311, -5.610152), (-23.061311, 2.327348), (-23.773651, 2.327348), (-23.773651, -3.905625), (-29.004896, 2.327348), (-29.16708, 2.327348), (-29.16708, -5.610152), (-28.45474, -5.610152), (-28.45474, 0.637131), (-23.210775, -5.610152)])  # lines 60-69
sketch3.addConstraint(Sketcher.Constraint("Block", 0))
sketch3.addConstraint(Sketcher.Constraint("Block", 1))
sketch3.addConstraint(Sketcher.Constraint("Block", 2))
sketch3.addConstraint(Sketcher.Constraint("Block", 3))
sketch3.addConstraint(Sketcher.Constraint("Block", 4))
sketch3.addConstraint(Sketcher.Constraint("Block", 5))
sketch3.addConstraint(Sketcher.Constraint("Block", 6))
sketch3.addConstraint(Sketcher.Constraint("Block", 7))
sketch3.addConstraint(Sketcher.Constraint("Block", 27))
sketch3.addConstraint(Sketcher.Constraint("Block", 28))
sketch3.addConstraint(Sketcher.Constraint("Block", 29))
sketch3.addConstraint(Sketcher.Constraint("Block", 30))
sketch3.addConstraint(Sketcher.Constraint("Block", 31))
sketch3.addConstraint(Sketcher.Constraint("Block", 33))
sketch3.addConstraint(Sketcher.Constraint("Block", 34))
sketch3.addConstraint(Sketcher.Constraint("Block", 35))
sketch3.addConstraint(Sketcher.Constraint("Block", 36))
sketch3.addConstraint(Sketcher.Constraint("Coincident", 26, 2, 27, 2))
sketch3.addConstraint(Sketcher.Constraint("Coincident", 31, 1, 32, 1))
sketch3.addConstraint(Sketcher.Constraint("Coincident", 32, 2, 33, 2))
sketch3.addConstraint(Sketcher.Constraint("Coincident", 36, 1, 26, 1))
sketch3.addConstraint(Sketcher.Constraint("Vertical", 8))
sketch3.addConstraint(Sketcher.Constraint("Horizontal", 9))
sketch3.addConstraint(Sketcher.Constraint("Vertical", 10))
sketch3.addConstraint(Sketcher.Constraint("Horizontal", 12))
sketch3.addConstraint(Sketcher.Constraint("Vertical", 13))
sketch3.addConstraint(Sketcher.Constraint("Horizontal", 14))
sketch3.addConstraint(Sketcher.Constraint("Vertical", 15))
sketch3.addConstraint(Sketcher.Constraint("Horizontal", 17))
sketch3.addConstraint(Sketcher.Constraint("Vertical", 18))
sketch3.addConstraint(Sketcher.Constraint("Horizontal", 19))
sketch3.addConstraint(Sketcher.Constraint("Vertical", 20))
sketch3.addConstraint(Sketcher.Constraint("Horizontal", 21))
sketch3.addConstraint(Sketcher.Constraint("Vertical", 22))
sketch3.addConstraint(Sketcher.Constraint("Horizontal", 23))
sketch3.addConstraint(Sketcher.Constraint("Vertical", 24))
sketch3.addConstraint(Sketcher.Constraint("Horizontal", 25))
sketch3.addConstraint(Sketcher.Constraint("Horizontal", 37))
sketch3.addConstraint(Sketcher.Constraint("Vertical", 38))
sketch3.addConstraint(Sketcher.Constraint("Horizontal", 39))
sketch3.addConstraint(Sketcher.Constraint("Vertical", 40))
sketch3.addConstraint(Sketcher.Constraint("Horizontal", 41))
sketch3.addConstraint(Sketcher.Constraint("Vertical", 42))
sketch3.addConstraint(Sketcher.Constraint("Horizontal", 43))
sketch3.addConstraint(Sketcher.Constraint("Vertical", 44))
sketch3.addConstraint(Sketcher.Constraint("Horizontal", 45))
sketch3.addConstraint(Sketcher.Constraint("Vertical", 46))
sketch3.addConstraint(Sketcher.Constraint("Horizontal", 47))
sketch3.addConstraint(Sketcher.Constraint("Vertical", 48))
sketch3.addConstraint(Sketcher.Constraint("Horizontal", 50))
sketch3.addConstraint(Sketcher.Constraint("Horizontal", 52))
sketch3.addConstraint(Sketcher.Constraint("Horizontal", 54))
sketch3.addConstraint(Sketcher.Constraint("Horizontal", 56))
sketch3.addConstraint(Sketcher.Constraint("Horizontal", 58))
sketch3.addConstraint(Sketcher.Constraint("Vertical", 60))
sketch3.addConstraint(Sketcher.Constraint("Horizontal", 61))
sketch3.addConstraint(Sketcher.Constraint("Vertical", 62))
sketch3.addConstraint(Sketcher.Constraint("Horizontal", 64))
sketch3.addConstraint(Sketcher.Constraint("Vertical", 65))
sketch3.addConstraint(Sketcher.Constraint("Horizontal", 66))
sketch3.addConstraint(Sketcher.Constraint("Vertical", 67))
sketch3.addConstraint(Sketcher.Constraint("Horizontal", 69))
sketch3.addConstraint(Sketcher.Constraint("Parallel", 11, 63))
sketch3.addConstraint(Sketcher.Constraint("Parallel", 16, 68))
sketch3.addConstraint(Sketcher.Constraint("Horizontal", 9, 2, 11, 2))
sketch3.addConstraint(Sketcher.Constraint("Horizontal", 14, 2, 16, 2))
sketch3.addConstraint(Sketcher.Constraint("Horizontal", 12, 2, 18, 2))
sketch3.addConstraint(Sketcher.Constraint("Horizontal", 17, 2, 20, 2))
sketch3.addConstraint(Sketcher.Constraint("Horizontal", 19, 2, 22, 2))
sketch3.addConstraint(Sketcher.Constraint("Horizontal", 21, 2, 24, 2))
sketch3.addConstraint(Sketcher.Constraint("Horizontal", 25, 2, 37, 2))
sketch3.addConstraint(Sketcher.Constraint("Horizontal", 23, 2, 38, 2))
sketch3.addConstraint(Sketcher.Constraint("Horizontal", 39, 2, 42, 2))
sketch3.addConstraint(Sketcher.Constraint("Horizontal", 37, 2, 44, 2))
sketch3.addConstraint(Sketcher.Constraint("Horizontal", 48, 2, 49, 2))
sketch3.addConstraint(Sketcher.Constraint("Horizontal", 43, 2, 51, 2))
sketch3.addConstraint(Sketcher.Constraint("Horizontal", 52, 2, 55, 2))
sketch3.addConstraint(Sketcher.Constraint("Horizontal", 56, 2, 60, 2))
sketch3.addConstraint(Sketcher.Constraint("Horizontal", 10, 2, 62, 2))
sketch3.addConstraint(Sketcher.Constraint("Horizontal", 61, 2, 63, 2))
sketch3.addConstraint(Sketcher.Constraint("Horizontal", 50, 2, 65, 2))
sketch3.addConstraint(Sketcher.Constraint("Horizontal", 15, 2, 67, 2))
sketch3.addConstraint(Sketcher.Constraint("Horizontal", 66, 2, 68, 2))
sketch3.addConstraint(Sketcher.Constraint("Vertical", 42, 2, 45, 2))
sketch3.addConstraint(Sketcher.Constraint("Vertical", 40, 2, 47, 2))
sketch3.addConstraint(Sketcher.Constraint("Equal", 9, 14))
sketch3.addConstraint(Sketcher.Constraint("Equal", 14, 19))
sketch3.addConstraint(Sketcher.Constraint("Equal", 21, 23))
sketch3.addConstraint(Sketcher.Constraint("Equal", 25, 37))
sketch3.addConstraint(Sketcher.Constraint("Equal", 39, 43))
sketch3.addConstraint(Sketcher.Constraint("Equal", 45, 61))
sketch3.addConstraint(Sketcher.Constraint("Equal", 12, 64))
sketch3.addConstraint(Sketcher.Constraint("Equal", 61, 66))
sketch3.addConstraint(Sketcher.Constraint("DistanceY", 8, 1, 8, 2, Q("7.9375 mm")))
sketch3.addConstraint(Sketcher.Constraint("DistanceX", 9, 2, 9, 1, Q("0.71234 mm")))
sketch3.addConstraint(Sketcher.Constraint("DistanceX", 52, 2, 52, 1, Q("0.777532 mm")))
sketch3.addConstraint(Sketcher.Constraint("DistanceX", 54, 2, 54, 1, Q("3.59827 mm")))
sketch3.addConstraint(Sketcher.Constraint("DistanceX", 56, 2, 56, 1, Q("0.774351 mm")))
sketch3.addConstraint(Sketcher.Constraint("DistanceX", 58, 1, 58, 2, Q("2.836639 mm")))
sketch3.addConstraint(Sketcher.Constraint("DistanceY", 46, 1, 46, 2, Q("3.25641 mm")))
sketch3.addConstraint(Sketcher.Constraint("DistanceX", -1, 1, 22, 2, Q("7.569298 mm")))
sketch3.addConstraint(Sketcher.Constraint("DistanceX", 59, 2, 58, 2, Q("1.4374 mm")))
sketch3.addConstraint(Sketcher.Constraint("DistanceY", 62, 2, 57, 2, Q("2.8748 mm")))
sketch3.addConstraint(Sketcher.Constraint("Distance", 49, Q("8.742131 mm")))
sketch3.addConstraint(Sketcher.Constraint("Distance", 51, Q("8.785262 mm")))
sketch3.addConstraint(Sketcher.Constraint("Distance", 57, Q("3.33949 mm")))
sketch3.addConstraint(Sketcher.Constraint("DistanceX", 12, 2, 12, 1, Q("0.162184 mm")))
sketch3.addConstraint(Sketcher.Constraint("DistanceX", 17, 1, 17, 2, Q("0.149464 mm")))
sketch3.addConstraint(Sketcher.Constraint("DistanceX", 41, 2, 41, 1, Q("4.070513 mm")))
sketch3.addConstraint(Sketcher.Constraint("DistanceX", 50, 1, 50, 2, Q("0.101763 mm")))
sketch3.addConstraint(Sketcher.Constraint("DistanceY", 10, 2, 10, 1, Q("6.232973 mm")))
sketch3.addConstraint(Sketcher.Constraint("DistanceY", 15, 1, 15, 2, Q("6.247283 mm")))
sketch3.addConstraint(Sketcher.Constraint("DistanceY", 40, 2, 40, 1, Q("3.866987 mm")))
sketch3.addConstraint(Sketcher.Constraint("DistanceX", -1, 1, 8, 2, Q("18.45792 mm")))
sketch3.addConstraint(Sketcher.Constraint("DistanceX", -1, 1, 12, 2, Q("12.352151 mm")))
sketch3.addConstraint(Sketcher.Constraint("DistanceY", -1, 1, 15, 2, Q("0.637131 mm")))
sketch3.addConstraint(Sketcher.Constraint("DistanceX", 37, 2, -1, 1, Q("7.186311 mm")))
sketch3.addConstraint(Sketcher.Constraint("DistanceX", 49, 2, -1, 1, Q("17.97317 mm")))
sketch3.addConstraint(Sketcher.Constraint("DistanceX", 58, 2, -1, 1, Q("16.476938 mm")))
sketch3.addConstraint(Sketcher.Constraint("DistanceX", 60, 2, -1, 1, Q("23.061311 mm")))
sketch3.addConstraint(Sketcher.Constraint("DistanceX", 18, 2, 11, 2, Q("2.197441 mm")))
sketch3.addConstraint(Sketcher.Constraint("DistanceY", 53, 2, 52, 2, Q("2.544071 mm")))
sketch3.addConstraint(Sketcher.Constraint("DistanceX", 54, 2, 50, 2, Q("1.81742 mm")))
pocket1 = doc.addObject("PartDesign::Pocket", "Pocket")
body.addObject(pocket1)
pocket1.Profile = sketch3
pocket1.Length = 20

doc.recompute()
